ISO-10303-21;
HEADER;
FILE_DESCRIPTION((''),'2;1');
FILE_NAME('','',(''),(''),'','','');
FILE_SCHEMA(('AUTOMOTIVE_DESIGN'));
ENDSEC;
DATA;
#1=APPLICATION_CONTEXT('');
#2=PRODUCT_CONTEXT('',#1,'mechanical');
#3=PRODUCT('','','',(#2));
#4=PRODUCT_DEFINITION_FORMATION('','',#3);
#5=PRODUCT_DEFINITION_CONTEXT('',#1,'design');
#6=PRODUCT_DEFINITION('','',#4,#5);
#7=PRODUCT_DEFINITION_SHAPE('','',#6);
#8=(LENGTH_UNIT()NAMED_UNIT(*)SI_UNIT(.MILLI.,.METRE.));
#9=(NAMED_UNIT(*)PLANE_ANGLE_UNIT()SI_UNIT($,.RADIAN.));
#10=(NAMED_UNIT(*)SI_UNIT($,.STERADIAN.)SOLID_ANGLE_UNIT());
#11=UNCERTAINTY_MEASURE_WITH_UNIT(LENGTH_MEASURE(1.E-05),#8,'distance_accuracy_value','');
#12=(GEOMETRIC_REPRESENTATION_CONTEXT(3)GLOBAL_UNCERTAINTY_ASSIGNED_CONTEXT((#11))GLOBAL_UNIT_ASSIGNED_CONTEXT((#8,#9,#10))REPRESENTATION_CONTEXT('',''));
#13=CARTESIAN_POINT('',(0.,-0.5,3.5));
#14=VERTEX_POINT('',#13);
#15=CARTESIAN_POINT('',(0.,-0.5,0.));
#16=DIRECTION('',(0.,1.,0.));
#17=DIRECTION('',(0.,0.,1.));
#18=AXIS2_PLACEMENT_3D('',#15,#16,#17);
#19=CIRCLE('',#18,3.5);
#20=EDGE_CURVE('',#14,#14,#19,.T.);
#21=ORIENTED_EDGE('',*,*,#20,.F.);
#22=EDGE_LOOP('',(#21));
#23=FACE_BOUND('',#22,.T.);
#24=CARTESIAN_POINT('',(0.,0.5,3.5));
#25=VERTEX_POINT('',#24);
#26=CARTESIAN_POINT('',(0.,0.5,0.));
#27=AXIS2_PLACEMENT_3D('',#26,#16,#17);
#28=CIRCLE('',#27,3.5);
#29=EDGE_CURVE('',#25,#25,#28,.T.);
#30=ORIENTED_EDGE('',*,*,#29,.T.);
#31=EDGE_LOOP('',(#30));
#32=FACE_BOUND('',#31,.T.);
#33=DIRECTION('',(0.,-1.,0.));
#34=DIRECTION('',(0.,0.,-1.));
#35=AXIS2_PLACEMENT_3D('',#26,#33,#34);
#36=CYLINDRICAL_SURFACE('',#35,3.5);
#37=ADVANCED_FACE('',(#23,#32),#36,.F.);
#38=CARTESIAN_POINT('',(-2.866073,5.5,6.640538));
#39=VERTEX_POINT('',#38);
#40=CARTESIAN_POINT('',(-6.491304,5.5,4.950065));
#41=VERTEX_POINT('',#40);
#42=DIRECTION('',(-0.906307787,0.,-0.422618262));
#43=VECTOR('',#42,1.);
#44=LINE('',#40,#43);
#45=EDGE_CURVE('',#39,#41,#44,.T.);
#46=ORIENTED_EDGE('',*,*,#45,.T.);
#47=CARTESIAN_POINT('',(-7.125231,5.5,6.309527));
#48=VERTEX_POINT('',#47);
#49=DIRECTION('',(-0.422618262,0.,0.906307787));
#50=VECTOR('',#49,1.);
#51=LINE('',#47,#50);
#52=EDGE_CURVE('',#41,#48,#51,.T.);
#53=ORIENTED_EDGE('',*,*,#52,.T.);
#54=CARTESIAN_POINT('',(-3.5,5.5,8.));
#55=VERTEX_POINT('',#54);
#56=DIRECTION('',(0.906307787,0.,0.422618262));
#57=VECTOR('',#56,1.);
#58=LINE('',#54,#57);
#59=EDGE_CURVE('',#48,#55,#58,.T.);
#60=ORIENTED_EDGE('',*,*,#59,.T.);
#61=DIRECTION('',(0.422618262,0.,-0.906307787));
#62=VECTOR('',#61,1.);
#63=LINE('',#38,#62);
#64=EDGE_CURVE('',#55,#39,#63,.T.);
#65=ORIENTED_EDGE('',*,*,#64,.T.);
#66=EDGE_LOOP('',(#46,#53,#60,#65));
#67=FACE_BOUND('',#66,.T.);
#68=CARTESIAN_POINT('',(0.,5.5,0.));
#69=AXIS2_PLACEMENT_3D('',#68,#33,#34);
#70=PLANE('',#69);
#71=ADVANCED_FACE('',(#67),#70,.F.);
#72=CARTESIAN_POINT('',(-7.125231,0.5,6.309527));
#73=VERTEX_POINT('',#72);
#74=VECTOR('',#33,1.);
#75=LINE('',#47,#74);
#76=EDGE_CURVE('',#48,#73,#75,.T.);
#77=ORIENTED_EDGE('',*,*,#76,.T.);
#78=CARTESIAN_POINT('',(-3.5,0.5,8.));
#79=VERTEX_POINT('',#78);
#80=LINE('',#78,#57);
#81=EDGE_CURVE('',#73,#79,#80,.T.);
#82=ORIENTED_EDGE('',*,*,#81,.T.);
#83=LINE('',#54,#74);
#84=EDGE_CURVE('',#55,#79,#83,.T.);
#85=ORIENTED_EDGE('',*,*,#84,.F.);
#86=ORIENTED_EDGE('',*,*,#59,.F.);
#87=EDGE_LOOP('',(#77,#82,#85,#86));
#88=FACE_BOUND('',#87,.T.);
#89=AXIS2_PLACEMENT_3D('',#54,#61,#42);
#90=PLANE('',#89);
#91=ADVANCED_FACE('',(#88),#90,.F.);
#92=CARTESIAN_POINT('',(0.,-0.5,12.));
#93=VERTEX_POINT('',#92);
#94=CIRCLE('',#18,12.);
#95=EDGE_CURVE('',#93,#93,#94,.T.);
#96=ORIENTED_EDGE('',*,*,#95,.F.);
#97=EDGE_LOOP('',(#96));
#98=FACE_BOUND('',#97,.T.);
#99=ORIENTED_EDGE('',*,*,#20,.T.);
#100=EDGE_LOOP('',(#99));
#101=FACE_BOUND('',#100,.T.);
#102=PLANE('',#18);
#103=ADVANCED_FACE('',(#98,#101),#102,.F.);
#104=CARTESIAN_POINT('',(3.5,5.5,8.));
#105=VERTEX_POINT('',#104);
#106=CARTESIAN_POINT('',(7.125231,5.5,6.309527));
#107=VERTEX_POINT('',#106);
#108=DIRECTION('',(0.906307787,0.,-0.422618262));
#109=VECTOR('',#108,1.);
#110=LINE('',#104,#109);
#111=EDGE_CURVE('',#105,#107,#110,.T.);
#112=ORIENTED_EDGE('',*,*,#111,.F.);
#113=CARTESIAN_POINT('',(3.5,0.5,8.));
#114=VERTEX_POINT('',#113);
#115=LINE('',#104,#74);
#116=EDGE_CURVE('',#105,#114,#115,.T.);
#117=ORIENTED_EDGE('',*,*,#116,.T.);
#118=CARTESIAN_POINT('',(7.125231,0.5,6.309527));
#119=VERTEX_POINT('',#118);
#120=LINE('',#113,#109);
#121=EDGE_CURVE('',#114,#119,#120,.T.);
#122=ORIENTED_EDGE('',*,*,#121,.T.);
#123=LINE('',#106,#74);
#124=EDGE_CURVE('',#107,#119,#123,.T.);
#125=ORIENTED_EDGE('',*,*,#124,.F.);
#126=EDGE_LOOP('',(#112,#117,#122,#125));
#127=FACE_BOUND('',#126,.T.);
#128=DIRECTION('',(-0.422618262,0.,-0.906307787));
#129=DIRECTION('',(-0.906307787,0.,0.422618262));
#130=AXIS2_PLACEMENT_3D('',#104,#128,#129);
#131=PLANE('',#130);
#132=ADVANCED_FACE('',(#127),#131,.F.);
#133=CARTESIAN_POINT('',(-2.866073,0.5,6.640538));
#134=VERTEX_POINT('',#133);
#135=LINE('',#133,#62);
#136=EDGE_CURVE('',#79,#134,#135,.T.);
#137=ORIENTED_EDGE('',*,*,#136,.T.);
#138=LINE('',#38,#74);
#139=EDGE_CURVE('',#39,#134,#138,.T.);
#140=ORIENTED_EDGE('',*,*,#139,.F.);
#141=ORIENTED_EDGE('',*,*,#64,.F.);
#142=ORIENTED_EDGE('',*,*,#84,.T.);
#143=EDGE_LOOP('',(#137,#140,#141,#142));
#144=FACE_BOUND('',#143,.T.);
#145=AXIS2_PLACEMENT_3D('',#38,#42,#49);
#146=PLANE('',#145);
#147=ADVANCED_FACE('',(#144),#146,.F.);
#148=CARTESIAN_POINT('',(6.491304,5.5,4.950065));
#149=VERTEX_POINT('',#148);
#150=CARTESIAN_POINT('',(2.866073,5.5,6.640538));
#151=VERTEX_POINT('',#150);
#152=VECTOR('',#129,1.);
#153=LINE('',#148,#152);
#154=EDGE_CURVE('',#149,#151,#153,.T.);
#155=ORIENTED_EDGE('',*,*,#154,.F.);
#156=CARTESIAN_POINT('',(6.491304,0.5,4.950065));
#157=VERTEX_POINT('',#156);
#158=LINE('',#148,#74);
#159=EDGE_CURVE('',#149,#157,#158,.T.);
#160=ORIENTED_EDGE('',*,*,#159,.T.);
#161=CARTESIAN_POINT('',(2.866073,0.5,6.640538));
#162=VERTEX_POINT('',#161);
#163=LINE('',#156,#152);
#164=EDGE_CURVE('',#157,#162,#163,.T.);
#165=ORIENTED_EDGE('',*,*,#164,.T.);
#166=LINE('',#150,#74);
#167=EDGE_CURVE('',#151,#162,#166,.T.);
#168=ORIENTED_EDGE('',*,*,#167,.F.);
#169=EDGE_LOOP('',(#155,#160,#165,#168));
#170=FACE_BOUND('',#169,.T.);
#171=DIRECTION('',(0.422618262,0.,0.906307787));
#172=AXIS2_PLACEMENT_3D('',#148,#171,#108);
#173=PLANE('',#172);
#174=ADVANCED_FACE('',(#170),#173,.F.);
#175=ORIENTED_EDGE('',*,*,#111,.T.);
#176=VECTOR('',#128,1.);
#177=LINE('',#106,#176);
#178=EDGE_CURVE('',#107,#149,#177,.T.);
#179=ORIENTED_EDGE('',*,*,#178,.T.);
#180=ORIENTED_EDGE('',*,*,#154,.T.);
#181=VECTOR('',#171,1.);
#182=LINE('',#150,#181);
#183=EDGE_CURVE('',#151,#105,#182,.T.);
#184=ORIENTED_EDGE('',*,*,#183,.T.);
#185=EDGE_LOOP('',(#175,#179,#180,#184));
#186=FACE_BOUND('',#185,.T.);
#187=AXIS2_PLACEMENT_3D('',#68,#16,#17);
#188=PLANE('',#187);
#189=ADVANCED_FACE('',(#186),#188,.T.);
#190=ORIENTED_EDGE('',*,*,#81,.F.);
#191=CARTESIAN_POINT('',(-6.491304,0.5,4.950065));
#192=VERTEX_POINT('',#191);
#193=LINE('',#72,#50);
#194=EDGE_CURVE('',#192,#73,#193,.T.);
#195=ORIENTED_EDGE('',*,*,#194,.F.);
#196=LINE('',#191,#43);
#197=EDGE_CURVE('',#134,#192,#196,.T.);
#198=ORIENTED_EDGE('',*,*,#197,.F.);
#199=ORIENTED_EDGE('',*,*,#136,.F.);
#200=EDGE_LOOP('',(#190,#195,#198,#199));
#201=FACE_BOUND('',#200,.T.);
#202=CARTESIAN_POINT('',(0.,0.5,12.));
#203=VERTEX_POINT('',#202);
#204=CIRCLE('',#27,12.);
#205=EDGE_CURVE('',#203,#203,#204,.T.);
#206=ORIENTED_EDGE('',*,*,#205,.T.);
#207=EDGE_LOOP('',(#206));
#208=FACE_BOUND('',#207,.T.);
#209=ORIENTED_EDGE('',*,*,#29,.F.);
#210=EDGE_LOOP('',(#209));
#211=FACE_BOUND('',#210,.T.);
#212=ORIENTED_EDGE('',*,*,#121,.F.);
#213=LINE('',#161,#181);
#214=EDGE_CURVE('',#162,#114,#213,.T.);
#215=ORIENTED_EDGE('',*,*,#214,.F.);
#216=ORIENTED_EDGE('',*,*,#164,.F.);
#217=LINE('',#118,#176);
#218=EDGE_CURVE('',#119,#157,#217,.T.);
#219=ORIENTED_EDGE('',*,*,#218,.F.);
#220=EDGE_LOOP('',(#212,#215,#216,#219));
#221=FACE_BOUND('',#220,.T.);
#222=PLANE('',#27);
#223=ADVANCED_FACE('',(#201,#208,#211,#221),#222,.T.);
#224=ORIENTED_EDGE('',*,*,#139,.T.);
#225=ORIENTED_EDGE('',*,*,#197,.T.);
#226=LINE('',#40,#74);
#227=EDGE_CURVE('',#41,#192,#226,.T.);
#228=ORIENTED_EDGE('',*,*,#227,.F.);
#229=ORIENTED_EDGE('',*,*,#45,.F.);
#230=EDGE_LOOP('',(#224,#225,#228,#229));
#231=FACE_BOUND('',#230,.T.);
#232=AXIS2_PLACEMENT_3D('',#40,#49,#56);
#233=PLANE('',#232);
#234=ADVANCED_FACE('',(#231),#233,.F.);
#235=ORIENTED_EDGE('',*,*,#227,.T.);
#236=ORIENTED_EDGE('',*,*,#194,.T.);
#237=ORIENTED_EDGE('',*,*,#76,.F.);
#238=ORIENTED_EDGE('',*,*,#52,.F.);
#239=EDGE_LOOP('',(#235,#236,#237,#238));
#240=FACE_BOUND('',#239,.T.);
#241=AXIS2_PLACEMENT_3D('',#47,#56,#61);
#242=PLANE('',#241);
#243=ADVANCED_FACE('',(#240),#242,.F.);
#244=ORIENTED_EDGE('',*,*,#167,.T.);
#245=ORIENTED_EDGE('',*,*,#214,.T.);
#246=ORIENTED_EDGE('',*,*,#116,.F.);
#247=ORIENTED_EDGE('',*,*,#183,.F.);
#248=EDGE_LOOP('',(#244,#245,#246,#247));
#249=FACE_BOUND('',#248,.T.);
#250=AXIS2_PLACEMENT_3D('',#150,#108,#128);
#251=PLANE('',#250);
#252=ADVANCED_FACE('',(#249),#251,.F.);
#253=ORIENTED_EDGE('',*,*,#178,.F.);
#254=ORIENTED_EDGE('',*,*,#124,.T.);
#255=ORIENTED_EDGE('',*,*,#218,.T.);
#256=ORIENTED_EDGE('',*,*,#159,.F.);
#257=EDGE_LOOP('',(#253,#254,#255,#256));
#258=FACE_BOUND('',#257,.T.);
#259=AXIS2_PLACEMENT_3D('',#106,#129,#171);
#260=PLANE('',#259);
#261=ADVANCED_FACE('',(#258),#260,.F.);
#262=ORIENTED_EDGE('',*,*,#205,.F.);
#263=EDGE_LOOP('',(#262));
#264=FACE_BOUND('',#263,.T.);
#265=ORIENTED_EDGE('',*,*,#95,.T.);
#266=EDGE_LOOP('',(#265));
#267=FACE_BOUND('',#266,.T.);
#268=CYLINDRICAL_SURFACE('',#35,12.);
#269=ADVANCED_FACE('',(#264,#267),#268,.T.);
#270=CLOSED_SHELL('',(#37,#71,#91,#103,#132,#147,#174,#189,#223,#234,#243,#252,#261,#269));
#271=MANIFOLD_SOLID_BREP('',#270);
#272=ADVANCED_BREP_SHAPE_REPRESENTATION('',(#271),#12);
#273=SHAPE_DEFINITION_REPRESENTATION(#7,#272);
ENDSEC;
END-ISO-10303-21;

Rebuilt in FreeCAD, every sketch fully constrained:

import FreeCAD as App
import Part
import Sketcher
Q = App.Units.Quantity

doc = App.newDocument("Part")
body = doc.addObject("PartDesign::Body", "Body")

sketch1 = doc.addObject("Sketcher::SketchObject", "Sketch")
body.addObject(sketch1)
sketch1.AttachmentSupport = (doc.XZ_Plane, [""])
sketch1.MapMode = "FlatFace"
sketch1.addGeometry([
    Part.Circle(App.Vector(0, 0, 0), App.Vector(0, 0, 1), 12),
    Part.Circle(App.Vector(0, 0, 0), App.Vector(0, 0, 1), 3.5),
], False)
sketch1.addConstraint([
    Sketcher.Constraint("Coincident", 0, 3, -1, 1),
    Sketcher.Constraint("Coincident", 1, 3, -1, 1),
    Sketcher.Constraint("Diameter", 0, 24.0),
    Sketcher.Constraint("Diameter", 1, 7.0),
])
pad1 = doc.addObject("PartDesign::Pad", "Pad")
body.addObject(pad1)
pad1.Profile = sketch1
pad1.Length = 1
pad1.Midplane = True

sketch2 = doc.addObject("Sketcher::SketchObject", "Sketch001")
body.addObject(sketch2)
sketch2.AttachmentSupport = (doc.XZ_Plane, [""])
sketch2.MapMode = "FlatFace"
sketch2.AttachmentOffset = App.Placement(App.Vector(0, 0, -0.5), App.Rotation())
sketch2.addGeometry([
    Part.LineSegment(App.Vector(-2.9, 6.6, 0), App.Vector(-6.5, 5, 0)),
    Part.LineSegment(App.Vector(-6.5, 5, 0), App.Vector(-7.1, 6.3, 0)),
    Part.LineSegment(App.Vector(-7.1, 6.3, 0), App.Vector(-3.5, 8, 0)),
    Part.LineSegment(App.Vector(-3.5, 8, 0), App.Vector(-2.9, 6.6, 0)),
    Part.LineSegment(App.Vector(7.1, 6.3, 0), App.Vector(6.5, 5, 0)),
    Part.LineSegment(App.Vector(6.5, 5, 0), App.Vector(2.9, 6.6, 0)),
    Part.LineSegment(App.Vector(2.9, 6.6, 0), App.Vector(3.5, 8, 0)),
    Part.LineSegment(App.Vector(3.5, 8, 0), App.Vector(7.1, 6.3, 0)),
], False)
sketch2.addConstraint([
    Sketcher.Constraint("Coincident", 0, 2, 1, 1),
    Sketcher.Constraint("Coincident", 1, 2, 2, 1),
    Sketcher.Constraint("Coincident", 2, 2, 3, 1),
    Sketcher.Constraint("Coincident", 3, 2, 0, 1),
    Sketcher.Constraint("Coincident", 4, 2, 5, 1),
    Sketcher.Constraint("Coincident", 5, 2, 6, 1),
    Sketcher.Constraint("Coincident", 6, 2, 7, 1),
    Sketcher.Constraint("Coincident", 7, 2, 4, 1),
    Sketcher.Constraint("Symmetric", 0, 2, 4, 2, -2),
    Sketcher.Constraint("Symmetric", 3, 2, 5, 2, -2),
    Sketcher.Constraint("Symmetric", 2, 2, 6, 2, -2),
    Sketcher.Constraint("Symmetric", 1, 2, 7, 2, -2),
    Sketcher.Constraint("Perpendicular", 0, 1),
    Sketcher.Constraint("Perpendicular", 1, 2),
    Sketcher.Constraint("Perpendicular", 2, 3),
    Sketcher.Constraint("Angle", 0, Q("-155 deg")),
    Sketcher.Constraint("Distance", 0, 4.0),
    Sketcher.Constraint("DistanceY", -1, 1, 2, 2, 8.0),
    Sketcher.Constraint("DistanceX", 2, 2, 6, 2, 7.0),
    Sketcher.Constraint("Distance", 1, 1.5),
])
pad2 = doc.addObject("PartDesign::Pad", "Pad001")
body.addObject(pad2)
pad2.Profile = sketch2
pad2.Length = 5
pad2.Reversed = True

doc.recompute()
